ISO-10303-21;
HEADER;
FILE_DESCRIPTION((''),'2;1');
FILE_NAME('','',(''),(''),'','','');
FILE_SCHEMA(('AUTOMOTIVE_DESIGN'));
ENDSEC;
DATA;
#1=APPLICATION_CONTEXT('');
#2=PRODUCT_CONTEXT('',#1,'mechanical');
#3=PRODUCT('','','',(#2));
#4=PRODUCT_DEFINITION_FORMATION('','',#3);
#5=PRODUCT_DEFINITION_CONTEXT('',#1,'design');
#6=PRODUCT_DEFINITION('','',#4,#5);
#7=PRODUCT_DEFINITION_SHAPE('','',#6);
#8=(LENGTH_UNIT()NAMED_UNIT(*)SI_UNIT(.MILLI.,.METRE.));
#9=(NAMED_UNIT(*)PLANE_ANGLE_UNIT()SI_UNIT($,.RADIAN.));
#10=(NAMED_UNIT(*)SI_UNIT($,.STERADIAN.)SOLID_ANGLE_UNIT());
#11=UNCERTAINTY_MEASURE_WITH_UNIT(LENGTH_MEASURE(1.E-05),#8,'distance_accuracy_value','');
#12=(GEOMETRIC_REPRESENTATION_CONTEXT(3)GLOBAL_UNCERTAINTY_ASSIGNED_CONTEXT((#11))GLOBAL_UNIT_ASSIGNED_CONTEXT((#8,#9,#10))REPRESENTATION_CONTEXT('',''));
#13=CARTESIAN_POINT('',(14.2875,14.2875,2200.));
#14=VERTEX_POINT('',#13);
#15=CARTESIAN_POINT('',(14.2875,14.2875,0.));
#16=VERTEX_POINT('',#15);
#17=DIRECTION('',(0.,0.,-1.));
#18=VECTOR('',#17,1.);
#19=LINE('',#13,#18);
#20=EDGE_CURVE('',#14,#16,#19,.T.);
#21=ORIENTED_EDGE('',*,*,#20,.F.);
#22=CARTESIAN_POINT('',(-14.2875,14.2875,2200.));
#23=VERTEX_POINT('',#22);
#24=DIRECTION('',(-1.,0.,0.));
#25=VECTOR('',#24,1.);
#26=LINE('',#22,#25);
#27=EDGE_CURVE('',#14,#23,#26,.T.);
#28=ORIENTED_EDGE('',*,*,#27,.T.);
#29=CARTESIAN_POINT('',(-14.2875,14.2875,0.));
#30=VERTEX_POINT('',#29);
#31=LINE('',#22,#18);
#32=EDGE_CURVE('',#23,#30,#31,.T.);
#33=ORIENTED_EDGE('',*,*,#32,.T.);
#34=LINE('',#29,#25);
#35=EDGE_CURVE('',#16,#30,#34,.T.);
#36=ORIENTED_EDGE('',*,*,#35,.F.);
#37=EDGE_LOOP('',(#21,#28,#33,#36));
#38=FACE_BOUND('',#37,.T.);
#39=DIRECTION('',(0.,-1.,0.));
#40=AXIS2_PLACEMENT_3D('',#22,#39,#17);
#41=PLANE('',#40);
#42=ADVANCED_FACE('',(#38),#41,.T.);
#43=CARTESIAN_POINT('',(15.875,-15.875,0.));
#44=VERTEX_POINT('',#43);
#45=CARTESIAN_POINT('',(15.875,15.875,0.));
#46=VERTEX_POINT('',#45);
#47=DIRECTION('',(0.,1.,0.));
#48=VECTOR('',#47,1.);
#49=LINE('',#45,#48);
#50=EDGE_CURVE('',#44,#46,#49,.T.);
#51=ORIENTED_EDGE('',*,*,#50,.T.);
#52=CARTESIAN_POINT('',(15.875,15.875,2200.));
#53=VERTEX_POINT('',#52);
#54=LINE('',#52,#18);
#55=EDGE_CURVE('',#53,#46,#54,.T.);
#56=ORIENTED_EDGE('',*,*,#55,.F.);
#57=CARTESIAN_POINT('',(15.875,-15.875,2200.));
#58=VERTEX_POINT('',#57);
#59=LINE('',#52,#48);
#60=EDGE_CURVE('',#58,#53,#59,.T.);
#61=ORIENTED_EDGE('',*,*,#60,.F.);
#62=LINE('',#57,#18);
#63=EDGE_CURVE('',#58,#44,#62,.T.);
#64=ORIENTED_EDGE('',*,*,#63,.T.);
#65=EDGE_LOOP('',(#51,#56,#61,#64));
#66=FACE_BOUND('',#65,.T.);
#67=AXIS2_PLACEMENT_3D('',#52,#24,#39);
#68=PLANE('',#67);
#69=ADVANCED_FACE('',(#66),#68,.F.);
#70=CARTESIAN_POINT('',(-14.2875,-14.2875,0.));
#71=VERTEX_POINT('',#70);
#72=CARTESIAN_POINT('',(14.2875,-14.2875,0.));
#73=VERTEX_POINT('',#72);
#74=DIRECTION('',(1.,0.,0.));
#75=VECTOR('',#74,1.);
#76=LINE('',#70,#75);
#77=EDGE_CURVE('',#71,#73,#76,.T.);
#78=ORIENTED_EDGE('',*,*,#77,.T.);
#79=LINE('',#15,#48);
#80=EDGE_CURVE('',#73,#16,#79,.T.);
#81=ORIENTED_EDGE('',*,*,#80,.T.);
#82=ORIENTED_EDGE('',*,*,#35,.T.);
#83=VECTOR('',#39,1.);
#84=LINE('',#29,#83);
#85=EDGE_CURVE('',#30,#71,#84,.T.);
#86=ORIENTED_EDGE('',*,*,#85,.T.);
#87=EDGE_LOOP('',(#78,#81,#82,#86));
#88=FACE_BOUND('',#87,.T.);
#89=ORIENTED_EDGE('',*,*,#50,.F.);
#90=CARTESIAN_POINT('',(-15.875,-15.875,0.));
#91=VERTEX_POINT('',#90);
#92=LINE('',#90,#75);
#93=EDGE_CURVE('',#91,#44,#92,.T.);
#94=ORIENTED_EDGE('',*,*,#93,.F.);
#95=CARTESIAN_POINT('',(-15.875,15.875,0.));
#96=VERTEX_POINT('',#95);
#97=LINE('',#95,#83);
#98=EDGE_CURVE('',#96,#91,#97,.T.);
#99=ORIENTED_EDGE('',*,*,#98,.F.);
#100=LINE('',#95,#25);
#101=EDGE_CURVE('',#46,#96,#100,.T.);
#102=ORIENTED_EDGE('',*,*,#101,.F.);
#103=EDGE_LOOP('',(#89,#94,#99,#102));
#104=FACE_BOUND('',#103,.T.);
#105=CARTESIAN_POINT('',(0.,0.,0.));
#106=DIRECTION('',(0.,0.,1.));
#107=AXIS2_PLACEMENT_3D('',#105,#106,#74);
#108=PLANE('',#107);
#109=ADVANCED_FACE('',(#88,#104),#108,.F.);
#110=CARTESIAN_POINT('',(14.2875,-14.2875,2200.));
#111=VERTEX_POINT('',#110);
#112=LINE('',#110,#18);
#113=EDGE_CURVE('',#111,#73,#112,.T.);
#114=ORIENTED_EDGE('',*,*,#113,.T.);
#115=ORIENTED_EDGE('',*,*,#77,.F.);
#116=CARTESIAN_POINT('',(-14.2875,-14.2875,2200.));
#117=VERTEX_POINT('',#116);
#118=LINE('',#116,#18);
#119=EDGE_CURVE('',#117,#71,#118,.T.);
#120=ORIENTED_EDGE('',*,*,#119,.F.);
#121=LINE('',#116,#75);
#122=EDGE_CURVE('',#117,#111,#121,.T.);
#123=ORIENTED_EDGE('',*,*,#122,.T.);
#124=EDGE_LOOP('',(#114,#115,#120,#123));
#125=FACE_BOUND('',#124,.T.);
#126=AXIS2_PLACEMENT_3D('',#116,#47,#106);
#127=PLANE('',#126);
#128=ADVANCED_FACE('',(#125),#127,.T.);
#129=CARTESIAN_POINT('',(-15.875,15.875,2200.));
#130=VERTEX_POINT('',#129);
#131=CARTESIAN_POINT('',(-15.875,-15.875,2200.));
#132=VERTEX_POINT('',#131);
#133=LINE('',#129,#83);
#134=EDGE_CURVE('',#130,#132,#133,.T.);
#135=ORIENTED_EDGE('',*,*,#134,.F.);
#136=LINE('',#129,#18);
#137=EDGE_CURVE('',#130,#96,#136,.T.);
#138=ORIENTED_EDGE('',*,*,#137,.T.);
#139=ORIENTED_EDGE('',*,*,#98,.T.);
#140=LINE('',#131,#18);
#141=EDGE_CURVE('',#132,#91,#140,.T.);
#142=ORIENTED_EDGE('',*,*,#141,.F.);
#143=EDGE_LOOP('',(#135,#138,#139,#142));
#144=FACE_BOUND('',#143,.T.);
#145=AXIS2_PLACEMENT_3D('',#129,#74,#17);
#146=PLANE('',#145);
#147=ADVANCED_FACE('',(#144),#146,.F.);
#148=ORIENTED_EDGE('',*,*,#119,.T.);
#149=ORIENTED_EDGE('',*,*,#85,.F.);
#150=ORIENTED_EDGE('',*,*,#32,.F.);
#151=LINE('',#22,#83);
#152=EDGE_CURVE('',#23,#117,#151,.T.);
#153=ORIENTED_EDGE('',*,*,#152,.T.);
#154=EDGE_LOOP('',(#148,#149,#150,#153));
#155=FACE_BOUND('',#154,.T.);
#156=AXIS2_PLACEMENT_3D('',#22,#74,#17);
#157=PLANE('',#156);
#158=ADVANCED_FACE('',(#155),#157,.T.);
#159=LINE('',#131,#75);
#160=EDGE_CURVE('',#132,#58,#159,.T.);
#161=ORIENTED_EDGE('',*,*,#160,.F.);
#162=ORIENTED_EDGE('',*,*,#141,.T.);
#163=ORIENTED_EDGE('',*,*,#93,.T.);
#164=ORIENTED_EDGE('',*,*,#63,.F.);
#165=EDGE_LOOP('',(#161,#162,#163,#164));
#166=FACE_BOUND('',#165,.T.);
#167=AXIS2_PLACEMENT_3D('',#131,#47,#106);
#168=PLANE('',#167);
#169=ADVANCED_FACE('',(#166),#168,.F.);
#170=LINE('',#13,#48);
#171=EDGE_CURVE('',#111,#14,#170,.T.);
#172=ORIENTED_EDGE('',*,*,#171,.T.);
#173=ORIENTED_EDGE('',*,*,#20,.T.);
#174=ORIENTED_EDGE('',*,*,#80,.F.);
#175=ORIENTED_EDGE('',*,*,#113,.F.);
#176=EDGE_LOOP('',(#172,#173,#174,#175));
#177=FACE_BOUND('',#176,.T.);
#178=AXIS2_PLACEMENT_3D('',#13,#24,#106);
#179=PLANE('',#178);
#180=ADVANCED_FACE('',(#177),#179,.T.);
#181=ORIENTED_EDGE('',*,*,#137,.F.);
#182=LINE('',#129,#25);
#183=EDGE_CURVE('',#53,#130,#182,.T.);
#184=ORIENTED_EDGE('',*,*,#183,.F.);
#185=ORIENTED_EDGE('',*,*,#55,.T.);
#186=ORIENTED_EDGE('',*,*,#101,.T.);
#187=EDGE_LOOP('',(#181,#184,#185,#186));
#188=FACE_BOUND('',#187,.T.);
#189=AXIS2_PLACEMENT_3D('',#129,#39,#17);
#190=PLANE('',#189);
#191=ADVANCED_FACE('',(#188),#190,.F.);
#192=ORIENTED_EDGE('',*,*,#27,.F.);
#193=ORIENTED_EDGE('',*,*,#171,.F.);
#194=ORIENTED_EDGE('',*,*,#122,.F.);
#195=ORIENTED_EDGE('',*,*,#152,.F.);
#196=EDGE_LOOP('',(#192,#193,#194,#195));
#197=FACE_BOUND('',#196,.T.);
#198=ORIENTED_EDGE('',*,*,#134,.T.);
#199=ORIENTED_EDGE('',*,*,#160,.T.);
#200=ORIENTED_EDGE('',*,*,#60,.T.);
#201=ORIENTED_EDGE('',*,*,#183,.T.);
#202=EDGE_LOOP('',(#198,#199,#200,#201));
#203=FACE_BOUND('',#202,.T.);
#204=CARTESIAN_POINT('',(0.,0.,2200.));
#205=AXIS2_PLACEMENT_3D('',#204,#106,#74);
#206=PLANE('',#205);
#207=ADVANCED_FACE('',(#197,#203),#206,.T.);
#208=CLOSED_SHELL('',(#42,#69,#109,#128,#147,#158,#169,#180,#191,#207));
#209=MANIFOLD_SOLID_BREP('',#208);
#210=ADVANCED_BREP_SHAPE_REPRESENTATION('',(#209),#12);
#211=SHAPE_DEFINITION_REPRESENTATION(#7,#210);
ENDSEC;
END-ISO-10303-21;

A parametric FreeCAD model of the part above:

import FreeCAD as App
import Part
import Sketcher
Q = App.Units.Quantity


def add_polygon(sketch, points):
    """Adds a closed chain of lines whose ends are joined by coincident constraints."""
    first, n = sketch.GeometryCount, len(points)
    for a, b in zip(points, points[1:] + points[:1]):
        sketch.addGeometry(Part.LineSegment(App.Vector(*a, 0), App.Vector(*b, 0)), False)
    for i in range(n):
        sketch.addConstraint(Sketcher.Constraint("Coincident", first + i, 2, first + (i + 1) % n, 1))

doc = App.newDocument("Part")
body = doc.addObject("PartDesign::Body", "Body")

sketch1 = body.newObject("Sketcher::SketchObject", "Sketch")
sketch1.AttachmentSupport = (doc.getObject("XY_Plane"), [""])
sketch1.MapMode = "FlatFace"
add_polygon(sketch1, [(-16, 16), (-16, -16), (16, -16), (16, 16)])
add_polygon(sketch1, [(14, -14), (-14, -14), (-14, 14), (14, 14)])
sketch1.addConstraint(Sketcher.Constraint("Vertical", 0))
sketch1.addConstraint(Sketcher.Constraint("Horizontal", 1))
sketch1.addConstraint(Sketcher.Constraint("Vertical", 2))
sketch1.addConstraint(Sketcher.Constraint("Horizontal", 3))
sketch1.addConstraint(Sketcher.Constraint("Horizontal", 4))
sketch1.addConstraint(Sketcher.Constraint("Vertical", 5))
sketch1.addConstraint(Sketcher.Constraint("Horizontal", 6))
sketch1.addConstraint(Sketcher.Constraint("Vertical", 7))
sketch1.addConstraint(Sketcher.Constraint("Symmetric", 0, 2, 2, 2, -1, 1))
sketch1.addConstraint(Sketcher.Constraint("Symmetric", 4, 2, 6, 2, -1, 1))
sketch1.addConstraint(Sketcher.Constraint("Equal", 3, 0))
sketch1.addConstraint(Sketcher.Constraint("Equal", 6, 5))
sketch1.addConstraint(Sketcher.Constraint("DistanceX", 1, 1, 1, 2, Q("1.25 in")))
sketch1.addConstraint(Sketcher.Constraint("DistanceX", 4, 2, 4, 1, Q("1.125 in")))
pad1 = body.newObject("PartDesign::Pad", "Pad")
pad1.Profile = sketch1
pad1.Length = 2200

doc.recompute()
